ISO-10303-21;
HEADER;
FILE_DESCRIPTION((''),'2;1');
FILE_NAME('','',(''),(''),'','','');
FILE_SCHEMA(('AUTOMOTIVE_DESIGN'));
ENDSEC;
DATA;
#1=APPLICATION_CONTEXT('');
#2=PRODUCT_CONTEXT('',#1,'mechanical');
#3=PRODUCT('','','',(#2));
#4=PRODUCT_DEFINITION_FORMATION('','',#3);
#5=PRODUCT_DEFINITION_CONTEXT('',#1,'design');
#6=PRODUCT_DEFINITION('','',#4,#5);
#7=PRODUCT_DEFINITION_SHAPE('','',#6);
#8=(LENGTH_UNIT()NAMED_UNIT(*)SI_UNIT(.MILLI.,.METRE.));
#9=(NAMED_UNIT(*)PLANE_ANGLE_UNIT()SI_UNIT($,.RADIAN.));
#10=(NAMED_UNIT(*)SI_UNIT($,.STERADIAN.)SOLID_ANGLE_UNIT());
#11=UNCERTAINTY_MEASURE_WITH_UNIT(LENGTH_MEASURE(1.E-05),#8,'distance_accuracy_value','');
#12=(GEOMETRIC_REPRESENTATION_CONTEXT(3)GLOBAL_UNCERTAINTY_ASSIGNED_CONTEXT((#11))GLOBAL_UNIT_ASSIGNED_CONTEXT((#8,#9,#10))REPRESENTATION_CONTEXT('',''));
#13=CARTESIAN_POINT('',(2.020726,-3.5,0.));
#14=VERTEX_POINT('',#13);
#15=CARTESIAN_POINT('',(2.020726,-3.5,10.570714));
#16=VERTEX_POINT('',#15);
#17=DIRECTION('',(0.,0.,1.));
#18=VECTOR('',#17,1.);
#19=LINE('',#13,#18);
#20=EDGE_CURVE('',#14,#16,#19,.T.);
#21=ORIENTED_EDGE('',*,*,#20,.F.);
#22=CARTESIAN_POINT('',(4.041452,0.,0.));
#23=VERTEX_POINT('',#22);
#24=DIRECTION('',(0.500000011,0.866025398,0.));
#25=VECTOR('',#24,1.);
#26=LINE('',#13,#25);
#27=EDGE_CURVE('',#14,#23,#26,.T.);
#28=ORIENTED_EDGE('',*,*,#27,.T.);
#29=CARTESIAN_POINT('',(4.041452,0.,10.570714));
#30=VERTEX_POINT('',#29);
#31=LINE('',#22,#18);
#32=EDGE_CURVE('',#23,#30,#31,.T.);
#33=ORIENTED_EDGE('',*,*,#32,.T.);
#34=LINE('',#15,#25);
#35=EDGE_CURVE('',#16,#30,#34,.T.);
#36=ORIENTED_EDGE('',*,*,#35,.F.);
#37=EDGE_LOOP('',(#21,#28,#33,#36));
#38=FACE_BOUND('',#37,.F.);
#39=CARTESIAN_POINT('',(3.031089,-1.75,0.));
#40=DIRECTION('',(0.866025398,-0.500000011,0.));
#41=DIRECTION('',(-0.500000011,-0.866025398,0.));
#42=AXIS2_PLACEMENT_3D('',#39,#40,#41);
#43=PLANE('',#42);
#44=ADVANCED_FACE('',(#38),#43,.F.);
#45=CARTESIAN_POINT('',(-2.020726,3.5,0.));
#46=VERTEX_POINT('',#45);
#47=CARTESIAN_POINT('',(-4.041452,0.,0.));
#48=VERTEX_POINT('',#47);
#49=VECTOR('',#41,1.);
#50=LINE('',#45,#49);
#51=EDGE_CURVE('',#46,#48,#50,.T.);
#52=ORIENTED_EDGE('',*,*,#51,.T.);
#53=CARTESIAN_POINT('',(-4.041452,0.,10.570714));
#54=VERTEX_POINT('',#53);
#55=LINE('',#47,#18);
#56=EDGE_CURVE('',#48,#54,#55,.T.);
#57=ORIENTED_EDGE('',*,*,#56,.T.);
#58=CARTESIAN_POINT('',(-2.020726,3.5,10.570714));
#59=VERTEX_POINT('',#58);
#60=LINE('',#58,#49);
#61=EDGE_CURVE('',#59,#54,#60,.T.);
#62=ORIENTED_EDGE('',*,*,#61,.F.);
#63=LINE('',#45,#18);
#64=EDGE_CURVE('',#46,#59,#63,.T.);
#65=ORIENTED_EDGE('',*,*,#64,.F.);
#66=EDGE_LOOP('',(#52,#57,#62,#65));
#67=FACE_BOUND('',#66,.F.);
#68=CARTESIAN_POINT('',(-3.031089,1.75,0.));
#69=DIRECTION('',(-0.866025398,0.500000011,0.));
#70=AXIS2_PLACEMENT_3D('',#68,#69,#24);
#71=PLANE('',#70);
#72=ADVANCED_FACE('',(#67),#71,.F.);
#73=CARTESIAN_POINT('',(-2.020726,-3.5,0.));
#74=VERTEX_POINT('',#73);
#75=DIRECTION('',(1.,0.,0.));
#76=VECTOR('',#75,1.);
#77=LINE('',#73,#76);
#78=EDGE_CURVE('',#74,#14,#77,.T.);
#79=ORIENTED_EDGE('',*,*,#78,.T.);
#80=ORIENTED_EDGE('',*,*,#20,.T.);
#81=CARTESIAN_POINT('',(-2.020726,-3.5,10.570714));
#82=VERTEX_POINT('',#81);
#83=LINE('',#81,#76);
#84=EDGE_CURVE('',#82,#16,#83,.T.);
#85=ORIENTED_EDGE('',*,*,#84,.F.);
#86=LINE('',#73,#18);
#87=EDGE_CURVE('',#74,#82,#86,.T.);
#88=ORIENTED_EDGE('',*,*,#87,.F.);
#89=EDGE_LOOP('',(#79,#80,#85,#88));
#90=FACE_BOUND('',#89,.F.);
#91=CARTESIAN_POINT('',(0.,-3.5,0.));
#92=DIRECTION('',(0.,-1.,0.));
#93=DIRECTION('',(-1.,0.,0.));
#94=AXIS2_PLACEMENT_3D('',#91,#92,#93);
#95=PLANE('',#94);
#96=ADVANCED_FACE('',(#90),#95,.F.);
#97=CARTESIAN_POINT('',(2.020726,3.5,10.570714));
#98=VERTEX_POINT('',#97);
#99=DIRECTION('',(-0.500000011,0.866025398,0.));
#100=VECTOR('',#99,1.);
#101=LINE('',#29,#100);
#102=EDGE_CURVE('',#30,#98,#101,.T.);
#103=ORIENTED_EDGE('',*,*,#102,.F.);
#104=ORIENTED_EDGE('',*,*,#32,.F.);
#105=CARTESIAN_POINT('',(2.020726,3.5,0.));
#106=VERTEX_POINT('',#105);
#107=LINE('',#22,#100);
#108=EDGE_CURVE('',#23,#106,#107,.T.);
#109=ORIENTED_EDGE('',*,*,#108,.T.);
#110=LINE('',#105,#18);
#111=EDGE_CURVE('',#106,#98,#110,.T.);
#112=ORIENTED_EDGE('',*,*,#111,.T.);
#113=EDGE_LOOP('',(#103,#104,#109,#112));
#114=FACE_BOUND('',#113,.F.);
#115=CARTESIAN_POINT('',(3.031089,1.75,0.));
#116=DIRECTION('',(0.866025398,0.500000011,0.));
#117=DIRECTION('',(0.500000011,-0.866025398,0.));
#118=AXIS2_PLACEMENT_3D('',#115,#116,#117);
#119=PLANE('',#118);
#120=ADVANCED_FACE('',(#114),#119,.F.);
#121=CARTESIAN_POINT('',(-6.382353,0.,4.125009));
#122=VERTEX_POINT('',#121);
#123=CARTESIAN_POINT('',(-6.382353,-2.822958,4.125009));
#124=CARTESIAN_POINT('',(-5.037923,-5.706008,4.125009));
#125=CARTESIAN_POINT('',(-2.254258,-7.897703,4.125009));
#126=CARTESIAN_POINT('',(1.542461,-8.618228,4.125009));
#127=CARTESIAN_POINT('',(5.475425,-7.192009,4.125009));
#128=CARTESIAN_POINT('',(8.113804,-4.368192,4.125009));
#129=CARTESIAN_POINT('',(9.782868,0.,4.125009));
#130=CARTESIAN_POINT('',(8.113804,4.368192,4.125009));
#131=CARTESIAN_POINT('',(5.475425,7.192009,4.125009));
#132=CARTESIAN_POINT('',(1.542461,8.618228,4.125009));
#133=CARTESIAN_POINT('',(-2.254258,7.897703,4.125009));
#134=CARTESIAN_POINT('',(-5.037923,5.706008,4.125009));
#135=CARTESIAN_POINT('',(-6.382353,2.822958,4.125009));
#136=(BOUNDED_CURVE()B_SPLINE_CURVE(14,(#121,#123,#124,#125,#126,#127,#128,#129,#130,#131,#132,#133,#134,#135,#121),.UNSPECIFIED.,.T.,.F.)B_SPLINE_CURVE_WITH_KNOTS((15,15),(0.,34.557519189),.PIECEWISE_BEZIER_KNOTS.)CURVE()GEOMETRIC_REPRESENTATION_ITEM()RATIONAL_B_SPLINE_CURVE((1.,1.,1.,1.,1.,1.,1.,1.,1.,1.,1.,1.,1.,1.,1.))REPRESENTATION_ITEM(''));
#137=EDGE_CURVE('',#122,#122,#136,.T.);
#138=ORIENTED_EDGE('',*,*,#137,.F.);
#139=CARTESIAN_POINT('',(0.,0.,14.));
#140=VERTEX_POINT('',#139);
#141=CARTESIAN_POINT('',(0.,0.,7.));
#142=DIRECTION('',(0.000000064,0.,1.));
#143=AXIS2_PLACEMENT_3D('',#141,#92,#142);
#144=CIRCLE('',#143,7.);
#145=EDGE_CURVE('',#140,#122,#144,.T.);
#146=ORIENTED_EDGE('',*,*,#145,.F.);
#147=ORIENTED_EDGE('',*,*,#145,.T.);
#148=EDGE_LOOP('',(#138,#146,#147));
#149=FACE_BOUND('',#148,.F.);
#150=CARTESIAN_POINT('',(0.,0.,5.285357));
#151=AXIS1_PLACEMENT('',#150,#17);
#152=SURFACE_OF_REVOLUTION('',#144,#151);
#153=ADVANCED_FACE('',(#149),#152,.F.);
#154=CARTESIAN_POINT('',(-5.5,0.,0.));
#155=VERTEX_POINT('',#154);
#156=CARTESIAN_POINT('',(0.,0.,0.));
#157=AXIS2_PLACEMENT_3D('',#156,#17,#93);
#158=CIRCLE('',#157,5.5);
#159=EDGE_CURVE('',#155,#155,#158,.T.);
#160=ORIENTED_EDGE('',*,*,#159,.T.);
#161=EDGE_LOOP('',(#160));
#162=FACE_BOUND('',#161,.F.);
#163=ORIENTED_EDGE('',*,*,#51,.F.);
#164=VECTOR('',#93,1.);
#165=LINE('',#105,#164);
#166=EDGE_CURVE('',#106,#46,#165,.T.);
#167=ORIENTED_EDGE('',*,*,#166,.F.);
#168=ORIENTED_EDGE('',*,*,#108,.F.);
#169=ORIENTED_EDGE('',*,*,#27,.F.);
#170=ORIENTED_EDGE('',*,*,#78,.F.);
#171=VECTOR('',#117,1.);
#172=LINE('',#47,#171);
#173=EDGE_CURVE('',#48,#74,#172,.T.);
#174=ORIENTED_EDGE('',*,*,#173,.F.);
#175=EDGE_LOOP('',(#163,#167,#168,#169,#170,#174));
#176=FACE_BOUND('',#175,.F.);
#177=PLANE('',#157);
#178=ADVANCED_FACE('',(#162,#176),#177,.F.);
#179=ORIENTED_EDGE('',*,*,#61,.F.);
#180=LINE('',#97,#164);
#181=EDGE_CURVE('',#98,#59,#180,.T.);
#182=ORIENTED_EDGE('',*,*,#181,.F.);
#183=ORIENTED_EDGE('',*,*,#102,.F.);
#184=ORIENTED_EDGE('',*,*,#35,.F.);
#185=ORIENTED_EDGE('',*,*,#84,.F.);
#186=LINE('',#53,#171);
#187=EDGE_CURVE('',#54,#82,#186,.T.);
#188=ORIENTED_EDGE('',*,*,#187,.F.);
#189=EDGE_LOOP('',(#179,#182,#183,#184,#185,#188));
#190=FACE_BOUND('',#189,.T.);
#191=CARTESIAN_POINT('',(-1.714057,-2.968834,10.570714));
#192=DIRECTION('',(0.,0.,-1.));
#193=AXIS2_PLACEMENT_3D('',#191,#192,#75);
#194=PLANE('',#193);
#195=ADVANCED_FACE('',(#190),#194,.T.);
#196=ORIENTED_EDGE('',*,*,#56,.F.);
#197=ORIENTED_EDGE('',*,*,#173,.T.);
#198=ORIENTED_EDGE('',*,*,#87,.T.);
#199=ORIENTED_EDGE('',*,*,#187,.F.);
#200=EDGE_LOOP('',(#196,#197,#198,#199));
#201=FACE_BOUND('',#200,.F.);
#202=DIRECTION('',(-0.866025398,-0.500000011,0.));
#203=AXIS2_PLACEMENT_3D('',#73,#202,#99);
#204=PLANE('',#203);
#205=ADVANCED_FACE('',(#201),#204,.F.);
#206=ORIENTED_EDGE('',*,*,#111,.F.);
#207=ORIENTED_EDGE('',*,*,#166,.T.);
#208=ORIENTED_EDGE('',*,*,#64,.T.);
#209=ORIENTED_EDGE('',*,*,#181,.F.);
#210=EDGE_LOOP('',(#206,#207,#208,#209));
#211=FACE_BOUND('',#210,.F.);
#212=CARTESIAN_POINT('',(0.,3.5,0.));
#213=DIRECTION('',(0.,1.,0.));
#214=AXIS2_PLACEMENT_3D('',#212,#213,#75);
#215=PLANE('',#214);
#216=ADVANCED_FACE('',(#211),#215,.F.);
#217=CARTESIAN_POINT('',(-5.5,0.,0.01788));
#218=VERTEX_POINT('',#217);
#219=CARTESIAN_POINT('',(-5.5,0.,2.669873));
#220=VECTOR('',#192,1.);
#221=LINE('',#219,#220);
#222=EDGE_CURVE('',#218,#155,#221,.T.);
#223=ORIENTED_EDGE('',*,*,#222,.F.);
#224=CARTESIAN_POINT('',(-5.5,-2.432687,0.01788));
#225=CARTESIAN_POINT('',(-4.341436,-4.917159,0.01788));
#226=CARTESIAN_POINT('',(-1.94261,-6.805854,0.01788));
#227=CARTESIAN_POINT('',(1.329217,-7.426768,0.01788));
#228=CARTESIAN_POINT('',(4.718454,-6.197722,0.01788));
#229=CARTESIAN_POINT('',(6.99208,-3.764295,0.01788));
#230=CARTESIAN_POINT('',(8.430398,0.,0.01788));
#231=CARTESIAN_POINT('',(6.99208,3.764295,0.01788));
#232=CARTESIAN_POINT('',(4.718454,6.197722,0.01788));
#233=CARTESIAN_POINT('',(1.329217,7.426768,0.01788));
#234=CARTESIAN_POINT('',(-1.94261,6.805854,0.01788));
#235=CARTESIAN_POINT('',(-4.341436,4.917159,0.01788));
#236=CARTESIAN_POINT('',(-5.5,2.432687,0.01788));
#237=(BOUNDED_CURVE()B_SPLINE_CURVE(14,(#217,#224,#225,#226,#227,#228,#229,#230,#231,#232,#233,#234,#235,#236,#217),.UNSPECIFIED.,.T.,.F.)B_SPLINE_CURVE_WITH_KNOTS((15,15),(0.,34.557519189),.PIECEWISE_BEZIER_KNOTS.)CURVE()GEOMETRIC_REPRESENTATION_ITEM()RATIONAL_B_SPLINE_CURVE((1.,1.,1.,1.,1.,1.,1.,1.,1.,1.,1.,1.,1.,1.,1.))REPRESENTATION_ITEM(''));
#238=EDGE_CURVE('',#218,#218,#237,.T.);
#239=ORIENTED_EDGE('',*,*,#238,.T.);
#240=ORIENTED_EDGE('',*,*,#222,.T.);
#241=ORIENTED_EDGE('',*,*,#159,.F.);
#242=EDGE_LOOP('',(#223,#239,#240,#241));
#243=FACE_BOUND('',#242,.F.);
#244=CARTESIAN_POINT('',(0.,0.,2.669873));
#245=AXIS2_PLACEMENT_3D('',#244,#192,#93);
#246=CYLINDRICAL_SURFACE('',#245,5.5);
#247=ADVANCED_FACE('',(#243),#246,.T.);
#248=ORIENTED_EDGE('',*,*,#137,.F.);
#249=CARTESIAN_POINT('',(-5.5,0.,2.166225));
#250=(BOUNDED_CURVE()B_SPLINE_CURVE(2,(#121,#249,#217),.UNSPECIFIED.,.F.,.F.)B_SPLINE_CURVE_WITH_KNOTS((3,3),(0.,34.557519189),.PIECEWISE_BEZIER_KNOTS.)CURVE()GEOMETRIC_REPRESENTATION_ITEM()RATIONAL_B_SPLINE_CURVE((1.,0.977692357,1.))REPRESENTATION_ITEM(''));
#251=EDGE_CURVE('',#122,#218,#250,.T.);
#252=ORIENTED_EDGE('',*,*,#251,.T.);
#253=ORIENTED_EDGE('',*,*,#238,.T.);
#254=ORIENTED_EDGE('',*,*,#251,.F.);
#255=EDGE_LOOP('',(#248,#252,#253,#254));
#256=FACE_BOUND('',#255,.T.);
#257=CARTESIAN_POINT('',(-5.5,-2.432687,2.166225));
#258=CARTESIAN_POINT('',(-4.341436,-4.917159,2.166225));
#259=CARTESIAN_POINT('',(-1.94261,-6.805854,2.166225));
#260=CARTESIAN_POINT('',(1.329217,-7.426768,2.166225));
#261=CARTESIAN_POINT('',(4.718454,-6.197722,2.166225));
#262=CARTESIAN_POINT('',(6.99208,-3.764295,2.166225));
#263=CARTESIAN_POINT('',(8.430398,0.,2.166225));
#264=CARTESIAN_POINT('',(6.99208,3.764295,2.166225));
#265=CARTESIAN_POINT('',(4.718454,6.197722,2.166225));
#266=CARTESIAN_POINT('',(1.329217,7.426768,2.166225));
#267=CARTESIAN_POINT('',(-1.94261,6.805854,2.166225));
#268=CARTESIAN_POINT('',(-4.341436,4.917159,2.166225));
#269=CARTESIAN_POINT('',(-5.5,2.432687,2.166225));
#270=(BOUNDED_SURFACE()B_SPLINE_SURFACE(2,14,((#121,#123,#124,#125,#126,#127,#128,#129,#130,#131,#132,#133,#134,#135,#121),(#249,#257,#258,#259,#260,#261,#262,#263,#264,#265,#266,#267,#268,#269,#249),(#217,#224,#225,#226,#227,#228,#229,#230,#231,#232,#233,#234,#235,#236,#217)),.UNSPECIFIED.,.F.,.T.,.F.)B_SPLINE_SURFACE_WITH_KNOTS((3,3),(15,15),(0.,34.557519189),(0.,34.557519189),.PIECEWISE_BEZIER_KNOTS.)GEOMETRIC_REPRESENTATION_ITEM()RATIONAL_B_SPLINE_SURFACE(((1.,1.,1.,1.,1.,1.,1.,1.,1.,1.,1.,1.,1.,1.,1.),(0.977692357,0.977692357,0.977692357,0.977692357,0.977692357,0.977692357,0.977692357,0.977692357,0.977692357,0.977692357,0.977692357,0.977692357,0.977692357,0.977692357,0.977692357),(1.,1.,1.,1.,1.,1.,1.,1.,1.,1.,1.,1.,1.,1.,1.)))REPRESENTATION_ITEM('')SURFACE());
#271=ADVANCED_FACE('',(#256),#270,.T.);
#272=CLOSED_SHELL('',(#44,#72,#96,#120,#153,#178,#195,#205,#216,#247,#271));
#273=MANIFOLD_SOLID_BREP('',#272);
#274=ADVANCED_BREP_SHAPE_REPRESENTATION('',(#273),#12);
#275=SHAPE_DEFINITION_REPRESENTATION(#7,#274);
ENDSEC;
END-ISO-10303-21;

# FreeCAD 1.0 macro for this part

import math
import FreeCAD as App
import Part
import Sketcher

V = App.Vector
Q = App.Units.Quantity


def edges_at(feature, points):
    """Names of the edges that pass closest to the given points."""
    edges = feature.Shape.Edges
    near = lambda p: min(range(len(edges)), key=lambda i: edges[i].distToShape(Part.Vertex(*p))[0])
    return sorted({f"Edge{near(p) + 1}" for p in points})

doc = App.newDocument("Part")
params = doc.addObject("Spreadsheet::Sheet", "Params")
for row, (alias, value) in enumerate([
    ("sketch1_radius", "7 mm"),
    ("sketch1_width", "2 mm"),
    ("sketch1_width2", "3.5 mm"),
    ("revolution_angle", "360 deg"),
    ("sketch2_radius", "3.5 mm"),
    ("pocket1_length", "10.570714 mm"),
    ("fillet_radius", "10 mm"),
], start=1):
    params.set(f"A{row}", alias)
    params.set(f"B{row}", "=" + value)
    params.setAlias(f"B{row}", alias)

body = doc.addObject("PartDesign::Body", "Body")

sketch1 = body.newObject("Sketcher::SketchObject", "Sketch")
sketch1.AttachmentSupport = (doc.getObject("XZ_Plane"), [""])
sketch1.MapMode = "FlatFace"
sketch1.addGeometry([
    Part.LineSegment(V(0, 10.570714, 0), V(0, 14, 0)),
    Part.ArcOfCircle(Part.Circle(V(0, 7, 0), V(0, 0, 1), 7), math.radians(89.999996), math.radians(218.213214)),
    Part.LineSegment(V(-5.5, 2.669873, 0), V(-5.5, 0, 0)),
    Part.LineSegment(V(-5.5, 0, 0), V(-3.5, 0, 0)),
    Part.LineSegment(V(-3.5, 0, 0), V(-3.5, 10.570714, 0)),
    Part.LineSegment(V(-3.5, 10.570714, 0), V(0, 10.570714, 0)),
], False)
sketch1.addConstraint([
    Sketcher.Constraint("Coincident", 0, 2, 1, 1),
    Sketcher.Constraint("Coincident", 1, 2, 2, 1),
    Sketcher.Constraint("Coincident", 2, 2, 3, 1),
    Sketcher.Constraint("Coincident", 3, 2, 4, 1),
    Sketcher.Constraint("Coincident", 4, 2, 5, 1),
    Sketcher.Constraint("Coincident", 5, 2, 0, 1),
    Sketcher.Constraint("Vertical", 0),
    Sketcher.Constraint("Vertical", 2),
    Sketcher.Constraint("Horizontal", 3),
    Sketcher.Constraint("Vertical", 4),
    Sketcher.Constraint("Horizontal", 5),
    Sketcher.Constraint("PointOnObject", 1, 3, -2),
    Sketcher.Constraint("PointOnObject", 0, 2, -2),
    Sketcher.Constraint("PointOnObject", 2, 2, -1),
    Sketcher.Constraint("Radius", 1, Q("7 mm")),
    Sketcher.Constraint("DistanceX", 3, 1, 3, 2, Q("2 mm")),
    Sketcher.Constraint("DistanceX", 5, 1, 5, 2, Q("3.5 mm")),
    Sketcher.Constraint("DistanceY", -1, 1, 1, 3, Q("7 mm")),
    Sketcher.Constraint("DistanceY", 0, 1, 0, 2, Q("3.429286 mm")),
])
sketch1.setExpression("Constraints[14]", "Params.sketch1_radius")
sketch1.setExpression("Constraints[15]", "Params.sketch1_width")
sketch1.setExpression("Constraints[16]", "Params.sketch1_width2")
revolution = body.newObject("PartDesign::Revolution", "Revolution")
revolution.Profile = sketch1
revolution.ReferenceAxis = (sketch1, ["V_Axis"])
revolution.setExpression("Angle", "Params.revolution_angle")

sketch2 = body.newObject("Sketcher::SketchObject", "Sketch001")
sketch2.AttachmentSupport = (doc.getObject("XY_Plane"), [""])
sketch2.MapMode = "FlatFace"
sketch2.addGeometry([
    Part.LineSegment(V(-2.020726, 3.5, 0), V(0, 3.5, 0)),
    Part.ArcOfCircle(Part.Circle(V(0, 0, 0), V(0, 0, 1), 3.5), math.radians(89.999997), math.radians(150.000002)),
    Part.LineSegment(V(-3.031089, 1.75, 0), V(-2.020726, 3.5, 0)),
    Part.LineSegment(V(-4.041452, 0, 0), V(-3.031089, 1.75, 0)),
    Part.ArcOfCircle(Part.Circle(V(0.000001, 0, 0), V(0, 0, 1), 3.500001), math.radians(150.000005), math.radians(209.999995)),
    Part.LineSegment(V(-3.031089, -1.75, 0), V(-4.041452, 0, 0)),
    Part.LineSegment(V(-2.020726, -3.5, 0), V(-3.031089, -1.75, 0)),
    Part.ArcOfCircle(Part.Circle(V(0, 0, 0), V(0, 0, 1), 3.5), math.radians(-150.000002), math.radians(-89.999997)),
    Part.LineSegment(V(0, -3.5, 0), V(-2.020726, -3.5, 0)),
    Part.ArcOfCircle(Part.Circle(V(0, 0, 0), V(0, 0, 1), 3.5), math.radians(-90.000003), math.radians(-29.999998)),
    Part.LineSegment(V(3.031089, -1.75, 0), V(2.020726, -3.5, 0)),
    Part.LineSegment(V(2.020726, -3.5, 0), V(0, -3.5, 0)),
    Part.ArcOfCircle(Part.Circle(V(-0.000009, -0.000002, 0), V(0, 0, 1), 3.500009), math.radians(0.000038), math.radians(29.999956)),
    Part.LineSegment(V(3.031089, 1.75, 0), V(4.041452, 0, 0)),
    Part.LineSegment(V(4.041452, 0, 0), V(3.031089, -1.75, 0)),
    Part.ArcOfCircle(Part.Circle(V(-0.000009, 0.000002, 0), V(0, 0, 1), 3.500009), math.radians(-29.999956), math.radians(-0.000038)),
    Part.LineSegment(V(0, 3.5, 0), V(2.020726, 3.5, 0)),
    Part.LineSegment(V(2.020726, 3.5, 0), V(3.031089, 1.75, 0)),
    Part.ArcOfCircle(Part.Circle(V(0, 0, 0), V(0, 0, 1), 3.5), math.radians(29.999998), math.radians(90.000003)),
], False)
sketch2.addConstraint([
    Sketcher.Constraint("Tangent", 0, 2, 1, 1),
    Sketcher.Constraint("Tangent", 1, 2, 2, 1),
    Sketcher.Constraint("Coincident", 2, 2, 0, 1),
    Sketcher.Constraint("Tangent", 3, 2, 4, 1),
    Sketcher.Constraint("Tangent", 4, 2, 5, 1),
    Sketcher.Constraint("Coincident", 5, 2, 3, 1),
    Sketcher.Constraint("Tangent", 6, 2, 7, 1),
    Sketcher.Constraint("Tangent", 7, 2, 8, 1),
    Sketcher.Constraint("Coincident", 8, 2, 6, 1),
    Sketcher.Constraint("Tangent", 9, 2, 10, 1),
    Sketcher.Constraint("Coincident", 10, 2, 11, 1),
    Sketcher.Constraint("Tangent", 11, 2, 9, 1),
    Sketcher.Constraint("Tangent", 12, 2, 13, 1),
    Sketcher.Constraint("Coincident", 13, 2, 14, 1),
    Sketcher.Constraint("Tangent", 14, 2, 15, 1),
    Sketcher.Constraint("Tangent", 15, 2, 12, 1),
    Sketcher.Constraint("Coincident", 16, 2, 17, 1),
    Sketcher.Constraint("Tangent", 17, 2, 18, 1),
    Sketcher.Constraint("Tangent", 18, 2, 16, 1),
    Sketcher.Constraint("Horizontal", 0),
    Sketcher.Constraint("Horizontal", 8),
    Sketcher.Constraint("Horizontal", 11),
    Sketcher.Constraint("Horizontal", 16),
    Sketcher.Constraint("Coincident", 1, 3, -1, 1),
    Sketcher.Constraint("Coincident", 4, 3, -1, 1),
    Sketcher.Constraint("Coincident", 7, 3, -1, 1),
    Sketcher.Constraint("Coincident", 9, 3, -1, 1),
    Sketcher.Constraint("Coincident", 12, 3, -1, 1),
    Sketcher.Constraint("Coincident", 18, 3, -1, 1),
    Sketcher.Constraint("Coincident", 3, 2, 1, 2),
    Sketcher.Constraint("Coincident", 6, 2, 4, 2),
    Sketcher.Constraint("Coincident", 14, 2, 9, 2),
    Sketcher.Constraint("Coincident", 17, 2, 12, 2),
    Sketcher.Constraint("Equal", 7, 9),
    Sketcher.Constraint("Equal", 12, 15),
    Sketcher.Constraint("Symmetric", 5, 2, 13, 2, -1, 1),
    Sketcher.Constraint("PointOnObject", 5, 2, -1),
    Sketcher.Constraint("PointOnObject", 15, 2, -1),
    Sketcher.Constraint("Equal", 2, 3),
    Sketcher.Constraint("Radius", 1, Q("3.5 mm")),
])
sketch2.setExpression("Constraints[39]", "Params.sketch2_radius")
pocket1 = body.newObject("PartDesign::Pocket", "Pocket")
pocket1.Profile = sketch2
pocket1.setExpression("Length", "Params.pocket1_length")
pocket1.Reversed = True
doc.recompute()

fillet = body.newObject("PartDesign::Fillet", "Fillet")
fillet.Base = (pocket1, edges_at(pocket1, [(5.5, 0, 2.67)]))
fillet.setExpression("Radius", "Params.fillet_radius")

doc.recompute()
